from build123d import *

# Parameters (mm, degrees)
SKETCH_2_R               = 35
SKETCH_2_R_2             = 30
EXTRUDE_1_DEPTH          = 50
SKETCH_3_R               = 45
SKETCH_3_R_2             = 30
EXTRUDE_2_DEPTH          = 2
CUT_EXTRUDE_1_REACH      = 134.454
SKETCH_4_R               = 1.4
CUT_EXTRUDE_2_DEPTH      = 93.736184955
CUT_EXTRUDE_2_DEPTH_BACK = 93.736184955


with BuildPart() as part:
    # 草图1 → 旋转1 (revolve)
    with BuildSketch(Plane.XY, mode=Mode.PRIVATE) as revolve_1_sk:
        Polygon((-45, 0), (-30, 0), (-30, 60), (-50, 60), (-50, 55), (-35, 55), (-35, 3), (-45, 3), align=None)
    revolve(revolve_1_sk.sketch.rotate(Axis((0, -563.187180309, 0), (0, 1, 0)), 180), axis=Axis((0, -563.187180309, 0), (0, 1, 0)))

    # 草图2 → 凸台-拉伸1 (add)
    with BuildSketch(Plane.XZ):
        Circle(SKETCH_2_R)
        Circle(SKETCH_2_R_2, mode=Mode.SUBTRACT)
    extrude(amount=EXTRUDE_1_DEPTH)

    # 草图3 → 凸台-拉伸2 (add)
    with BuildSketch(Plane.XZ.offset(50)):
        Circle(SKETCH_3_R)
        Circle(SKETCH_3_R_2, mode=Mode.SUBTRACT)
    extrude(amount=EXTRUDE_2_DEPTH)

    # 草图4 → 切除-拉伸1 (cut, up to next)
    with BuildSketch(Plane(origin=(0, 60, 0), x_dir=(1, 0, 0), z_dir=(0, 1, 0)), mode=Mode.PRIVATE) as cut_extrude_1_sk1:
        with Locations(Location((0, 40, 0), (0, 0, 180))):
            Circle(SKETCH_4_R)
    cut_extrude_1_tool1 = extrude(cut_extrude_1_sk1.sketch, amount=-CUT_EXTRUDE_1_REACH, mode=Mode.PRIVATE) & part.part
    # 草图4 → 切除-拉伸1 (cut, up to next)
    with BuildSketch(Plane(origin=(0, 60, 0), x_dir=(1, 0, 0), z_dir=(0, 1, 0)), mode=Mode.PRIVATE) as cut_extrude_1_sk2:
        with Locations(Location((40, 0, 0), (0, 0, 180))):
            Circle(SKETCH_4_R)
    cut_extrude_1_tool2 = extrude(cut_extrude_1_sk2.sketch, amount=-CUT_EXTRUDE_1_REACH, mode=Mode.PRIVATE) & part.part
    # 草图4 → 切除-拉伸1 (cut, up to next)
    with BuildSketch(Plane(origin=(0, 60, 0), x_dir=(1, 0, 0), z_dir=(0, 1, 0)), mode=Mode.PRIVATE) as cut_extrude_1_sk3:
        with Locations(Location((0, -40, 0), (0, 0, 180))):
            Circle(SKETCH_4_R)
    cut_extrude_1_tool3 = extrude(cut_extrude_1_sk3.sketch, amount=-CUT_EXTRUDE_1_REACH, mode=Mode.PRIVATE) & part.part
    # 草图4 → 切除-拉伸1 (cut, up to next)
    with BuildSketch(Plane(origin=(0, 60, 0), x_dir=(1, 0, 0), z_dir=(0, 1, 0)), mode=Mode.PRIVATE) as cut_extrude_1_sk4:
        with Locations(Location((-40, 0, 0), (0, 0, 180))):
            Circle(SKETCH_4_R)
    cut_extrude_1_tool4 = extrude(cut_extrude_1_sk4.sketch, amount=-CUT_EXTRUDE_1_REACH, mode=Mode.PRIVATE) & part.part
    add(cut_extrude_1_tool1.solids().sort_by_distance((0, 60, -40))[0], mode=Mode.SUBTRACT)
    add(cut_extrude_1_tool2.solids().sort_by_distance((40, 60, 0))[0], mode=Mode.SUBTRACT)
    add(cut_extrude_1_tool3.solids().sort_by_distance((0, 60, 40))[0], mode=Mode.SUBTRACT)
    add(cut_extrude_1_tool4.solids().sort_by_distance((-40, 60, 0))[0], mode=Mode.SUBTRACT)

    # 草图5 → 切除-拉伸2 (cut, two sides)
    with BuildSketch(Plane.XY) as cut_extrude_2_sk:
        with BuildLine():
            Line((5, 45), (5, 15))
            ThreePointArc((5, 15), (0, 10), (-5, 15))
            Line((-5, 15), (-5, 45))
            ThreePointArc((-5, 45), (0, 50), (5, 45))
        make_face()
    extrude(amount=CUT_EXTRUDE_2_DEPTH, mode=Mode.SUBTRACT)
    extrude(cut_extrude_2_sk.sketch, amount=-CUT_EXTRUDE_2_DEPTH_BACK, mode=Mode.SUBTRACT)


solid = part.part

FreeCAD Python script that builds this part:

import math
import FreeCAD as App
import Part
import Sketcher
from FreeCAD import Vector
Q = App.Units.Quantity


def add_polygon(sketch, points):
    """Adds a closed chain of lines whose ends are joined by coincident constraints."""
    first, n = sketch.GeometryCount, len(points)
    for a, b in zip(points, points[1:] + points[:1]):
        sketch.addGeometry(Part.LineSegment(App.Vector(*a, 0), App.Vector(*b, 0)), False)
    for i in range(n):
        sketch.addConstraint(Sketcher.Constraint("Coincident", first + i, 2, first + (i + 1) % n, 1))

doc = App.newDocument("Part")
body = doc.addObject("PartDesign::Body", "Body")

# Sketch on XY plane
sketch1 = body.newObject("Sketcher::SketchObject", "Sketch")
sketch1.AttachmentSupport = (doc.getObject("XY_Plane"), [""])
sketch1.MapMode = "FlatFace"
add_polygon(sketch1, [(-45, 0), (-30, 0), (-30, 60), (-50, 60), (-50, 55), (-35, 55), (-35, 3), (-45, 3)])  # lines 0-7
sketch1.addConstraint(Sketcher.Constraint("Horizontal", 0))
sketch1.addConstraint(Sketcher.Constraint("Vertical", 1))
sketch1.addConstraint(Sketcher.Constraint("Horizontal", 2))
sketch1.addConstraint(Sketcher.Constraint("Vertical", 3))
sketch1.addConstraint(Sketcher.Constraint("Horizontal", 4))
sketch1.addConstraint(Sketcher.Constraint("Vertical", 5))
sketch1.addConstraint(Sketcher.Constraint("Horizontal", 6))
sketch1.addConstraint(Sketcher.Constraint("Vertical", 7))
sketch1.addConstraint(Sketcher.Constraint("PointOnObject", 0, 2, -1))
sketch1.addConstraint(Sketcher.Constraint("Equal", 0, 4))
sketch1.addConstraint(Sketcher.Constraint("DistanceX", 0, 1, 0, 2, Q("15 mm")))
sketch1.addConstraint(Sketcher.Constraint("DistanceX", 2, 2, 2, 1, Q("20 mm")))
sketch1.addConstraint(Sketcher.Constraint("DistanceY", 1, 1, 1, 2, Q("60 mm")))
sketch1.addConstraint(Sketcher.Constraint("DistanceY", 3, 2, 3, 1, Q("5 mm")))
sketch1.addConstraint(Sketcher.Constraint("DistanceY", 5, 2, 5, 1, Q("52 mm")))
sketch1.addConstraint(Sketcher.Constraint("DistanceX", 0, 2, -1, 1, Q("30 mm")))
revolution = body.newObject("PartDesign::Revolution", "Revolution")
revolution.Profile = sketch1
revolution.ReferenceAxis = (sketch1, ["V_Axis"])
revolution.Angle = 360

# Sketch on XZ plane
sketch2 = body.newObject("Sketcher::SketchObject", "Sketch001")
sketch2.AttachmentSupport = (doc.getObject("XZ_Plane"), [""])
sketch2.MapMode = "FlatFace"
sketch2.addGeometry(Part.Circle(Vector(0, 0, 0), Vector(0, 0, 1), 35), False)
sketch2.addGeometry(Part.Circle(Vector(0, 0, 0), Vector(0, 0, 1), 30), False)
sketch2.addConstraint(Sketcher.Constraint("Coincident", 0, 3, -1, 1))
sketch2.addConstraint(Sketcher.Constraint("Coincident", 1, 3, -1, 1))
sketch2.addConstraint(Sketcher.Constraint("Diameter", 0, Q("70 mm")))
sketch2.addConstraint(Sketcher.Constraint("Diameter", 1, Q("60 mm")))
pad1 = body.newObject("PartDesign::Pad", "Pad")
pad1.Profile = sketch2
pad1.Length = 50

# Sketch on XZ plane
sketch3 = body.newObject("Sketcher::SketchObject", "Sketch002")
sketch3.AttachmentSupport = (doc.getObject("XZ_Plane"), [""])
sketch3.MapMode = "FlatFace"
sketch3.AttachmentOffset = App.Placement(Vector(0, 0, 50), App.Rotation())
sketch3.addGeometry(Part.Circle(Vector(0, 0, 0), Vector(0, 0, 1), 45), False)
sketch3.addGeometry(Part.Circle(Vector(0, 0, 0), Vector(0, 0, 1), 30), False)
sketch3.addConstraint(Sketcher.Constraint("Coincident", 0, 3, -1, 1))
sketch3.addConstraint(Sketcher.Constraint("Coincident", 1, 3, -1, 1))
sketch3.addConstraint(Sketcher.Constraint("Diameter", 0, Q("90 mm")))
sketch3.addConstraint(Sketcher.Constraint("Diameter", 1, Q("60 mm")))
pad2 = body.newObject("PartDesign::Pad", "Pad001")
pad2.Profile = sketch3
pad2.Length = 2

# Sketch on XZ plane
sketch4 = body.newObject("Sketcher::SketchObject", "Sketch003")
sketch4.AttachmentSupport = (doc.getObject("XZ_Plane"), [""])
sketch4.MapMode = "FlatFace"
sketch4.AttachmentOffset = App.Placement(Vector(0, 0, -60), App.Rotation())
sketch4.addGeometry(Part.Circle(Vector(0, -40, 0), Vector(0, 0, 1), 1.4), False)
sketch4.addConstraint(Sketcher.Constraint("PointOnObject", 0, 3, -2))
sketch4.addConstraint(Sketcher.Constraint("Diameter", 0, Q("2.8 mm")))
sketch4.addConstraint(Sketcher.Constraint("DistanceY", 0, 3, -1, 1, Q("40 mm")))
pocket1 = body.newObject("PartDesign::Pocket", "Pocket")
pocket1.Profile = sketch4
pocket1.Type = "UpToFirst"
pocket1.Reversed = True

# Sketch on XZ plane
sketch5 = body.newObject("Sketcher::SketchObject", "Sketch004")
sketch5.AttachmentSupport = (doc.getObject("XZ_Plane"), [""])
sketch5.MapMode = "FlatFace"
sketch5.AttachmentOffset = App.Placement(Vector(0, 0, -60), App.Rotation())
sketch5.addGeometry(Part.Circle(Vector(40, 0, 0), Vector(0, 0, 1), 1.4), False)
sketch5.addConstraint(Sketcher.Constraint("PointOnObject", 0, 3, -1))
sketch5.addConstraint(Sketcher.Constraint("Diameter", 0, Q("2.8 mm")))
sketch5.addConstraint(Sketcher.Constraint("DistanceX", -1, 1, 0, 3, Q("40 mm")))
pocket2 = body.newObject("PartDesign::Pocket", "Pocket001")
pocket2.Profile = sketch5
pocket2.Type = "UpToFirst"
pocket2.Reversed = True

# Sketch on XZ plane
sketch6 = body.newObject("Sketcher::SketchObject", "Sketch005")
sketch6.AttachmentSupport = (doc.getObject("XZ_Plane"), [""])
sketch6.MapMode = "FlatFace"
sketch6.AttachmentOffset = App.Placement(Vector(0, 0, -60), App.Rotation())
sketch6.addGeometry(Part.Circle(Vector(0, 40, 0), Vector(0, 0, 1), 1.4), False)
sketch6.addConstraint(Sketcher.Constraint("PointOnObject", 0, 3, -2))
sketch6.addConstraint(Sketcher.Constraint("Diameter", 0, Q("2.8 mm")))
sketch6.addConstraint(Sketcher.Constraint("DistanceY", -1, 1, 0, 3, Q("40 mm")))
pocket3 = body.newObject("PartDesign::Pocket", "Pocket002")
pocket3.Profile = sketch6
pocket3.Type = "UpToFirst"
pocket3.Reversed = True

# Sketch on XZ plane
sketch7 = body.newObject("Sketcher::SketchObject", "Sketch006")
sketch7.AttachmentSupport = (doc.getObject("XZ_Plane"), [""])
sketch7.MapMode = "FlatFace"
sketch7.AttachmentOffset = App.Placement(Vector(0, 0, -60), App.Rotation())
sketch7.addGeometry(Part.Circle(Vector(-40, 0, 0), Vector(0, 0, 1), 1.4), False)
sketch7.addConstraint(Sketcher.Constraint("PointOnObject", 0, 3, -1))
sketch7.addConstraint(Sketcher.Constraint("Diameter", 0, Q("2.8 mm")))
sketch7.addConstraint(Sketcher.Constraint("DistanceX", 0, 3, -1, 1, Q("40 mm")))
pocket4 = body.newObject("PartDesign::Pocket", "Pocket003")
pocket4.Profile = sketch7
pocket4.Type = "UpToFirst"
pocket4.Reversed = True

# Sketch on XY plane
sketch8 = body.newObject("Sketcher::SketchObject", "Sketch007")
sketch8.AttachmentSupport = (doc.getObject("XY_Plane"), [""])
sketch8.MapMode = "FlatFace"
sketch8.addGeometry(Part.LineSegment(Vector(5, 15, 0), Vector(5, 45, 0)), False)
sketch8.addGeometry(Part.ArcOfCircle(Part.Circle(Vector(0, 45, 0), Vector(0, 0, 1), 5), math.radians(0), math.radians(180)), False)
sketch8.addGeometry(Part.LineSegment(Vector(-5, 45, 0), Vector(-5, 15, 0)), False)
sketch8.addGeometry(Part.ArcOfCircle(Part.Circle(Vector(0, 15, 0), Vector(0, 0, 1), 5), math.radians(180), math.radians(360)), False)
sketch8.addConstraint(Sketcher.Constraint("Tangent", 0, 2, 1, 1))
sketch8.addConstraint(Sketcher.Constraint("Tangent", 1, 2, 2, 1))
sketch8.addConstraint(Sketcher.Constraint("Tangent", 2, 2, 3, 1))
sketch8.addConstraint(Sketcher.Constraint("Tangent", 3, 2, 0, 1))
sketch8.addConstraint(Sketcher.Constraint("Vertical", 0))
sketch8.addConstraint(Sketcher.Constraint("Vertical", 2))
sketch8.addConstraint(Sketcher.Constraint("PointOnObject", 1, 3, -2))
sketch8.addConstraint(Sketcher.Constraint("Radius", 1, Q("5 mm")))
sketch8.addConstraint(Sketcher.Constraint("DistanceY", 0, 1, 0, 2, Q("30 mm")))
sketch8.addConstraint(Sketcher.Constraint("DistanceY", -1, 1, 1, 3, Q("45 mm")))
pocket5 = body.newObject("PartDesign::Pocket", "Pocket004")
pocket5.Profile = sketch8
pocket5.Type = "ThroughAll"
pocket5.Midplane = True

doc.recompute()
